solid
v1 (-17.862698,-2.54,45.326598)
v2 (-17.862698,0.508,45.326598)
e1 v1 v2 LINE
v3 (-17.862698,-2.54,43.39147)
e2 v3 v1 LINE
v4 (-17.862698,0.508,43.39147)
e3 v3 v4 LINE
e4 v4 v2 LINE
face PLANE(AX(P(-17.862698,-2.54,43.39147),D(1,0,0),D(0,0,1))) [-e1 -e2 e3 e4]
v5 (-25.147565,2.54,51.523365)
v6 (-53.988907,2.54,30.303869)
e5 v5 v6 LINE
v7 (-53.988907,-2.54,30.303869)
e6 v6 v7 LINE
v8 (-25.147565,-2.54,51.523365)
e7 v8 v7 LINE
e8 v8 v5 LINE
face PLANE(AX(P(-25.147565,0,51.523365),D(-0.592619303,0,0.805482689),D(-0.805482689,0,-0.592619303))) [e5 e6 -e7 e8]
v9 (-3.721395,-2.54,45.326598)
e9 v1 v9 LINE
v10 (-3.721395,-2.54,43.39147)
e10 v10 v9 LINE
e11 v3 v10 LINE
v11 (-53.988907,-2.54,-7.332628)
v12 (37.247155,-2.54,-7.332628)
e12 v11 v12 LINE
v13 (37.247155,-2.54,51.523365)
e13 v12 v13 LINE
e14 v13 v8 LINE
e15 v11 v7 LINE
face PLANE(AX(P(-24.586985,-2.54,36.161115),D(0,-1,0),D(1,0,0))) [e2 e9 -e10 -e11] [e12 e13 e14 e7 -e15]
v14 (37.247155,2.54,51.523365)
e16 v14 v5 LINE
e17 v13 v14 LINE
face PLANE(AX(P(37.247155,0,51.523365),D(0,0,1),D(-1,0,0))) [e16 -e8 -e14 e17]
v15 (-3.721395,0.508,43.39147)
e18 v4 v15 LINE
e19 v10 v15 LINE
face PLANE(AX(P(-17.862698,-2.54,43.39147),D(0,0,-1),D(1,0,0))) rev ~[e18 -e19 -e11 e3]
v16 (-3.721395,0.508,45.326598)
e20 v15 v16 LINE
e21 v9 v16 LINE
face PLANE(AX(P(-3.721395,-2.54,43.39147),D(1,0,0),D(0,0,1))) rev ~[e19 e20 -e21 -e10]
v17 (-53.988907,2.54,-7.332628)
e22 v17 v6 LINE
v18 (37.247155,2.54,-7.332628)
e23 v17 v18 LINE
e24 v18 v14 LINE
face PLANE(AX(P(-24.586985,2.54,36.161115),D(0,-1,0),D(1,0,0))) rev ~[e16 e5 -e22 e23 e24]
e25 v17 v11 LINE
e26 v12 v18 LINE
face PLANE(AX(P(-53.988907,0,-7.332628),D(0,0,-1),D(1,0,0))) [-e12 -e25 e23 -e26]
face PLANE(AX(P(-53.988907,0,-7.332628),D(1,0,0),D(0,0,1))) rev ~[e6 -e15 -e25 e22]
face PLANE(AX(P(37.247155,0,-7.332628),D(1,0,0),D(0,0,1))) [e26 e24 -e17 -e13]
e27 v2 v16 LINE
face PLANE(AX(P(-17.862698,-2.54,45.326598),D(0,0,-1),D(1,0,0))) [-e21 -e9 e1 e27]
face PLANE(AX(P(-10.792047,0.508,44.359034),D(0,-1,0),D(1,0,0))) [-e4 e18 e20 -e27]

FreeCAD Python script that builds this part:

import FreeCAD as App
import Part
import Sketcher
from FreeCAD import Vector
Q = App.Units.Quantity


def add_polygon(sketch, points):
    """Adds a closed chain of lines whose ends are joined by coincident constraints."""
    first, n = sketch.GeometryCount, len(points)
    for a, b in zip(points, points[1:] + points[:1]):
        sketch.addGeometry(Part.LineSegment(App.Vector(*a, 0), App.Vector(*b, 0)), False)
    for i in range(n):
        sketch.addConstraint(Sketcher.Constraint("Coincident", first + i, 2, first + (i + 1) % n, 1))

doc = App.newDocument("Part")
body = doc.addObject("PartDesign::Body", "Body")

# Sketch on XZ plane
sketch1 = doc.addObject("Sketcher::SketchObject", "Sketch")
body.addObject(sketch1)
sketch1.AttachmentSupport = (doc.XZ_Plane, [""])
sketch1.MapMode = "FlatFace"
add_polygon(sketch1, [(-25, 52), (-54, 30), (-54, -7), (37, -7), (37, 52)])  # lines 0-4
sketch1.addConstraint(Sketcher.Constraint("Vertical", 1))
sketch1.addConstraint(Sketcher.Constraint("Horizontal", 2))
sketch1.addConstraint(Sketcher.Constraint("Vertical", 3))
sketch1.addConstraint(Sketcher.Constraint("Horizontal", 4))
sketch1.addConstraint(Sketcher.Constraint("DistanceX", 4, 2, 4, 1, 62.39472))
sketch1.addConstraint(Sketcher.Constraint("DistanceX", 2, 1, 2, 2, 91.236062))
sketch1.addConstraint(Sketcher.Constraint("DistanceY", 1, 2, 1, 1, 37.636497))
sketch1.addConstraint(Sketcher.Constraint("DistanceY", 3, 1, 3, 2, 58.855993))
sketch1.addConstraint(Sketcher.Constraint("DistanceY", -1, 1, 0, 2, 30.303869))
sketch1.addConstraint(Sketcher.Constraint("DistanceX", 0, 2, -1, 1, 53.988907))
pad1 = doc.addObject("PartDesign::Pad", "Pad")
body.addObject(pad1)
pad1.Profile = sketch1
pad1.Type = "TwoLengths"
pad1.Length = Q("0.1 in")
pad1.Length2 = Q("0.1 in")

# Sketch on XY plane
sketch2 = doc.addObject("Sketcher::SketchObject", "Sketch001")
body.addObject(sketch2)
sketch2.AttachmentSupport = (doc.XY_Plane, [""])
sketch2.MapMode = "FlatFace"
sketch2.AttachmentOffset = App.Placement(Vector(0, 0, -7.332628), App.Rotation())
add_polygon(sketch2, [(-49.4, -7.3), (-49.4, -3.8), (-45.9, -3.8), (-45.9, -7.3)])  # lines 0-3
add_polygon(sketch2, [(25.6, -7.3), (25.6, -3.8), (29.1, -3.8), (29.1, -7.3)])  # lines 4-7
sketch2.addConstraint(Sketcher.Constraint("Vertical", 0))
sketch2.addConstraint(Sketcher.Constraint("Horizontal", 1))
sketch2.addConstraint(Sketcher.Constraint("Vertical", 2))
sketch2.addConstraint(Sketcher.Constraint("Horizontal", 3))
sketch2.addConstraint(Sketcher.Constraint("Vertical", 4))
sketch2.addConstraint(Sketcher.Constraint("Horizontal", 5))
sketch2.addConstraint(Sketcher.Constraint("Vertical", 6))
sketch2.addConstraint(Sketcher.Constraint("Horizontal", 7))
sketch2.addConstraint(Sketcher.Constraint("Horizontal", 1, 2, 4, 2))
sketch2.addConstraint(Sketcher.Constraint("Horizontal", 3, 2, 6, 2))
sketch2.addConstraint(Sketcher.Constraint("Equal", 3, 5))
sketch2.addConstraint(Sketcher.Constraint("Equal", 7, 0))
sketch2.addConstraint(Sketcher.Constraint("DistanceX", 1, 1, 1, 2, 3.50409))
sketch2.addConstraint(Sketcher.Constraint("DistanceX", 0, 2, -1, 1, 49.446572))
sketch2.addConstraint(Sketcher.Constraint("DistanceY", 0, 2, -1, 1, 3.82854))
sketch2.addConstraint(Sketcher.Constraint("DistanceX", -1, 1, 5, 2, 29.070951))
pocket1 = doc.addObject("PartDesign::Pocket", "Pocket")
body.addObject(pocket1)
pocket1.Profile = sketch2
pocket1.Length = Q("0.14 in")
pocket1.Reversed = True

# Sketch on XZ plane
sketch3 = doc.addObject("Sketcher::SketchObject", "Sketch002")
body.addObject(sketch3)
sketch3.AttachmentSupport = (doc.XZ_Plane, [""])
sketch3.MapMode = "FlatFace"
sketch3.AttachmentOffset = App.Placement(Vector(0, 0, 0.1 * 25.4), App.Rotation())
add_polygon(sketch3, [(-9.7, 45.9), (-9.7, 44.9), (0, 44.9), (0, 45.9)])  # lines 0-3
sketch3.addConstraint(Sketcher.Constraint("Vertical", 0))
sketch3.addConstraint(Sketcher.Constraint("Horizontal", 1))
sketch3.addConstraint(Sketcher.Constraint("Vertical", 2))
sketch3.addConstraint(Sketcher.Constraint("Horizontal", 3))
sketch3.addConstraint(Sketcher.Constraint("PointOnObject", 1, 2, -2))
sketch3.addConstraint(Sketcher.Constraint("DistanceX", 1, 1, 1, 2, 9.675629))
sketch3.addConstraint(Sketcher.Constraint("DistanceY", 0, 2, 0, 1, 1.041993))
sketch3.addConstraint(Sketcher.Constraint("DistanceY", -1, 1, 0, 2, 44.880029))
pad2 = doc.addObject("PartDesign::Pad", "Pad001")
body.addObject(pad2)
pad2.Profile = sketch3
pad2.Length = Q("0.06 in")
pad2.Reversed = True

# Sketch on XZ plane
sketch4 = doc.addObject("Sketcher::SketchObject", "Sketch003")
body.addObject(sketch4)
sketch4.AttachmentSupport = (doc.XZ_Plane, [""])
sketch4.MapMode = "FlatFace"
sketch4.AttachmentOffset = App.Placement(Vector(0, 0, 0.1 * 25.4), App.Rotation())
add_polygon(sketch4, [(-17.9, 45.3), (-17.9, 43.4), (-3.7, 43.4), (-3.7, 45.3)])  # lines 0-3
sketch4.addConstraint(Sketcher.Constraint("Vertical", 0))
sketch4.addConstraint(Sketcher.Constraint("Horizontal", 1))
sketch4.addConstraint(Sketcher.Constraint("Vertical", 2))
sketch4.addConstraint(Sketcher.Constraint("Horizontal", 3))
sketch4.addConstraint(Sketcher.Constraint("DistanceY", 0, 2, 0, 1, 1.935128))
sketch4.addConstraint(Sketcher.Constraint("DistanceX", 0, 2, -1, 1, 17.862698))
sketch4.addConstraint(Sketcher.Constraint("DistanceX", 1, 1, 1, 2, 14.141303))
sketch4.addConstraint(Sketcher.Constraint("DistanceY", -1, 1, 0, 2, 43.39147))
pocket2 = doc.addObject("PartDesign::Pocket", "Pocket001")
body.addObject(pocket2)
pocket2.Profile = sketch4
pocket2.Length = Q("0.12 in")

doc.recompute()
